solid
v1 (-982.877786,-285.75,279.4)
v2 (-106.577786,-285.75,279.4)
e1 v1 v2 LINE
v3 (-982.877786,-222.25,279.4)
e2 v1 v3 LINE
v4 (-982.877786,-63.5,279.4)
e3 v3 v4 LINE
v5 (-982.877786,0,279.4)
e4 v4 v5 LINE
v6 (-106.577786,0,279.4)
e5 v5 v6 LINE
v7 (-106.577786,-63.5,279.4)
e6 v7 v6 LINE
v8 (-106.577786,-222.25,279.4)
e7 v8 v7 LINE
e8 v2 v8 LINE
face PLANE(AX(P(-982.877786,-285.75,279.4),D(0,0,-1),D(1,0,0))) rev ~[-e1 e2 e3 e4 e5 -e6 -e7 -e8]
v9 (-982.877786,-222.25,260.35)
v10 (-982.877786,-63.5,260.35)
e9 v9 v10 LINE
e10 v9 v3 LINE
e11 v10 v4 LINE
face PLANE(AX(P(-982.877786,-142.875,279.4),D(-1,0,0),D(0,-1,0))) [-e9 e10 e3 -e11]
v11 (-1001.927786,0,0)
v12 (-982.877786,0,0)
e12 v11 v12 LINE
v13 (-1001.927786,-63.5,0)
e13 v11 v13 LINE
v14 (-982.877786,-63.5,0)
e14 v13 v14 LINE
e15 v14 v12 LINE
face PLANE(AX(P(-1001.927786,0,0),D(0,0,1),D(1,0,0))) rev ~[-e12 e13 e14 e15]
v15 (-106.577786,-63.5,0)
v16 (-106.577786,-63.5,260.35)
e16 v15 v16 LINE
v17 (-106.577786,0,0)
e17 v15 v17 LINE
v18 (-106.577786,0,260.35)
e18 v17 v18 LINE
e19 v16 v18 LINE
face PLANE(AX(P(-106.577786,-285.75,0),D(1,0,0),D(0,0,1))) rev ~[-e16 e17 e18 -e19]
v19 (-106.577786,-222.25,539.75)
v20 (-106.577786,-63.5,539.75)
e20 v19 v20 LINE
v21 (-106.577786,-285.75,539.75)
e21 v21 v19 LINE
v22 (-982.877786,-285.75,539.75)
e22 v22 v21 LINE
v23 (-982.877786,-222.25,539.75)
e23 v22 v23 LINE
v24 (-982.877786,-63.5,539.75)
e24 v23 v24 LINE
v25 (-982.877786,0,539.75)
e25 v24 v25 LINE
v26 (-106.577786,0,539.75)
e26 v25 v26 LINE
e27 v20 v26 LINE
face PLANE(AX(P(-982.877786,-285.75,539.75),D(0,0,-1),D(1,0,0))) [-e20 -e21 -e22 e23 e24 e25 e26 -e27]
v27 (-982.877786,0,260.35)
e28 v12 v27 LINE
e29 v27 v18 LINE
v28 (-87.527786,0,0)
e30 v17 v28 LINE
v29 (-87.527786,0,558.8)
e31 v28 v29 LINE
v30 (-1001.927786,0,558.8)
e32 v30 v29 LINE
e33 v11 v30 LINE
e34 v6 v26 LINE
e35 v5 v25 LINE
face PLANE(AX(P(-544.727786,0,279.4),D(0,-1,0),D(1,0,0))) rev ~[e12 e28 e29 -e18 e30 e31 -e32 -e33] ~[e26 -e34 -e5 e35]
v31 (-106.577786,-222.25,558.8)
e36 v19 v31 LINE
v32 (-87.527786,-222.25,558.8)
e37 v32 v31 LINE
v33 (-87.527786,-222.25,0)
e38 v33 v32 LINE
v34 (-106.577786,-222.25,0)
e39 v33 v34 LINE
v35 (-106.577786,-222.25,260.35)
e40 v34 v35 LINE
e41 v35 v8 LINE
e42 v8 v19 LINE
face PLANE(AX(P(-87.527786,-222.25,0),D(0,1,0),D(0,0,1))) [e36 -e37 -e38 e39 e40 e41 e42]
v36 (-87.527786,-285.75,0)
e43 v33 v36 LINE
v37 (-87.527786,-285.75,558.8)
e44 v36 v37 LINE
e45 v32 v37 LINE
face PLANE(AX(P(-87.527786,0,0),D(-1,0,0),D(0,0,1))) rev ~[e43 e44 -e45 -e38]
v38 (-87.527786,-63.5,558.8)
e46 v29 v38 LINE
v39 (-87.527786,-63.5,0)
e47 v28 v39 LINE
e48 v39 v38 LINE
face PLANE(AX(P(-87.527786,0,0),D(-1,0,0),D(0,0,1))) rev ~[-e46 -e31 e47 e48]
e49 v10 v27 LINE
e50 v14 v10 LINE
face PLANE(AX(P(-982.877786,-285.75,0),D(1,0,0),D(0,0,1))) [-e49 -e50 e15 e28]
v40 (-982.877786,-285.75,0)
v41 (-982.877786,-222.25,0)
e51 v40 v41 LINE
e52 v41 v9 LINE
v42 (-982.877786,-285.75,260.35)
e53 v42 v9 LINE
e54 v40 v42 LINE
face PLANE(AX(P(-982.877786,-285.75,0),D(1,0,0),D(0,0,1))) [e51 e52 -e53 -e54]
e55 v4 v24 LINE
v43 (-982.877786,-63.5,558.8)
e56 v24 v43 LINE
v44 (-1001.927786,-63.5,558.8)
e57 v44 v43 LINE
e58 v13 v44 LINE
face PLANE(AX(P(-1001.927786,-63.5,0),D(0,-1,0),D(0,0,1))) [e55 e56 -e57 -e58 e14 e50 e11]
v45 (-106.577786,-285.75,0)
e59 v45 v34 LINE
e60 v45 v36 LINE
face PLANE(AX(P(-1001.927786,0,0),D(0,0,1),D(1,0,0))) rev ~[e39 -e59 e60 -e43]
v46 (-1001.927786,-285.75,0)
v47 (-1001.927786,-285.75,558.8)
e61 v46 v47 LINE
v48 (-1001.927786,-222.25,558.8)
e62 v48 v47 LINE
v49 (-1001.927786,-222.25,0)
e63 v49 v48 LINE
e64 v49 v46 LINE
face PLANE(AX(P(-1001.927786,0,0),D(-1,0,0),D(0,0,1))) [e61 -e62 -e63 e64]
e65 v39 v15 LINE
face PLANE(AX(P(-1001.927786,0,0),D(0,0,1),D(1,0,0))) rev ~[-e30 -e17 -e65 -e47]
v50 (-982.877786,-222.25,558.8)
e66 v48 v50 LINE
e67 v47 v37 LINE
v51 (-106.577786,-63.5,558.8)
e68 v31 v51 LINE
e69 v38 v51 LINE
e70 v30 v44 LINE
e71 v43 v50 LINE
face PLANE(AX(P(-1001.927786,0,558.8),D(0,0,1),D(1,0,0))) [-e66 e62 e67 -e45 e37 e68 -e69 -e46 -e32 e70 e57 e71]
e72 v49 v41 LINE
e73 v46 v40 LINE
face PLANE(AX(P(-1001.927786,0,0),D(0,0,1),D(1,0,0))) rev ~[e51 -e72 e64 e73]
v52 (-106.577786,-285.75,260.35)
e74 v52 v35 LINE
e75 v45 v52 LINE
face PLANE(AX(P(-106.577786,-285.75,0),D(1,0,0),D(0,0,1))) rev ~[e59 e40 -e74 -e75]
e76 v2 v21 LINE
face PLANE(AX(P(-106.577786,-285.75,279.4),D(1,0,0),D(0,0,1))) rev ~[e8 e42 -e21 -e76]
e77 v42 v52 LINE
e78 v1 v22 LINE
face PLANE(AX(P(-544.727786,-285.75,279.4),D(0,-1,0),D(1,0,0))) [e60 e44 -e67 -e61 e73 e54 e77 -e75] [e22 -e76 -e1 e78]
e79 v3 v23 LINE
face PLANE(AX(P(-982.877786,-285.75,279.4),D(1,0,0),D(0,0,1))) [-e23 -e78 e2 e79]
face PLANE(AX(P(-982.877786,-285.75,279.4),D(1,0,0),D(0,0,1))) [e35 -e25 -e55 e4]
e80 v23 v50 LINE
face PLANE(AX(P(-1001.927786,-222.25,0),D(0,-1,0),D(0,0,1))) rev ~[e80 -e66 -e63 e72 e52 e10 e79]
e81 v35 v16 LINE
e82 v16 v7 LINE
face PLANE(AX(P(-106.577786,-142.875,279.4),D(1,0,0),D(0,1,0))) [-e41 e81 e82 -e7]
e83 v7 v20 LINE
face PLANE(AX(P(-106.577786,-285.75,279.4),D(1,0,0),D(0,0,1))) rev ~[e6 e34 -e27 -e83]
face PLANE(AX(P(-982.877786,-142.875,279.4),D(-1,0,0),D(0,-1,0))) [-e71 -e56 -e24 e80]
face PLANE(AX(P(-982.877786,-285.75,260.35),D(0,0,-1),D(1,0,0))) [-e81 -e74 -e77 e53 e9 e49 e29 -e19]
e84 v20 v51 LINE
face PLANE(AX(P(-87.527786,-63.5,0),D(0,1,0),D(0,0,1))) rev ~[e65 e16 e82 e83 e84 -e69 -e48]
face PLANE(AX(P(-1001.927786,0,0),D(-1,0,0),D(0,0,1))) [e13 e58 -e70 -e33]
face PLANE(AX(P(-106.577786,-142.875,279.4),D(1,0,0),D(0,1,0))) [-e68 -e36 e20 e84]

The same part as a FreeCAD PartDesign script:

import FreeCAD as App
import Part
import Sketcher
from FreeCAD import Vector
Q = App.Units.Quantity

doc = App.newDocument("Part")
params = doc.addObject("Spreadsheet::Sheet", "Params")
for row, (alias, value) in enumerate([
    ("sketch1_width", "36 in"),
    ("sketch1_height", "22 in"),
    ("pad1_length", "11.25 in"),
    ("sketch2_width", "34.5 in"),
    ("sketch2_height", "10.25 in"),
    ("sketch3_height", "22 in"),
    ("sketch3_width", "6.25 in"),
    ("pocket2_length", "0.75 in"),
    ("sketch4_height", "22 in"),
    ("sketch4_width", "6.25 in"),
    ("pocket3_length", "0.75 in"),
], start=1):
    params.set(f"A{row}", alias)
    params.set(f"B{row}", "=" + value)
    params.setAlias(f"B{row}", alias)

body = doc.addObject("PartDesign::Body", "Body")

# Sketch on XZ plane
sketch1 = body.newObject("Sketcher::SketchObject", "Sketch")
sketch1.AttachmentSupport = (doc.getObject("XZ_Plane"), [""])
sketch1.MapMode = "FlatFace"
sketch1.addGeometry(Part.LineSegment(Vector(-1002, 559, 0), Vector(-1002, 0, 0)), False)
sketch1.addGeometry(Part.LineSegment(Vector(-1002, 0, 0), Vector(-88, 0, 0)), False)
sketch1.addGeometry(Part.LineSegment(Vector(-88, 0, 0), Vector(-88, 559, 0)), False)
sketch1.addGeometry(Part.LineSegment(Vector(-88, 559, 0), Vector(-1002, 559, 0)), False)
sketch1.addConstraint(Sketcher.Constraint("Coincident", 0, 2, 1, 1))
sketch1.addConstraint(Sketcher.Constraint("Coincident", 1, 2, 2, 1))
sketch1.addConstraint(Sketcher.Constraint("Coincident", 2, 2, 3, 1))
sketch1.addConstraint(Sketcher.Constraint("Coincident", 3, 2, 0, 1))
sketch1.addConstraint(Sketcher.Constraint("Vertical", 0))
sketch1.addConstraint(Sketcher.Constraint("Horizontal", 1))
sketch1.addConstraint(Sketcher.Constraint("Vertical", 2))
sketch1.addConstraint(Sketcher.Constraint("Horizontal", 3))
sketch1.addConstraint(Sketcher.Constraint("PointOnObject", 0, 2, -1))
sketch1.addConstraint(Sketcher.Constraint("DistanceX", 1, 1, 1, 2, Q("36 in")))
sketch1.addConstraint(Sketcher.Constraint("DistanceY", 0, 2, 0, 1, Q("22 in")))
sketch1.addConstraint(Sketcher.Constraint("DistanceX", 0, 2, -1, 1, Q("1001.927786 mm")))
sketch1.setExpression("Constraints[9]", "Params.sketch1_width")
sketch1.setExpression("Constraints[10]", "Params.sketch1_height")
pad1 = body.newObject("PartDesign::Pad", "Pad")
pad1.Profile = sketch1
pad1.setExpression("Length", "Params.pad1_length")

# Sketch on XZ plane
sketch2 = body.newObject("Sketcher::SketchObject", "Sketch001")
sketch2.AttachmentSupport = (doc.getObject("XZ_Plane"), [""])
sketch2.MapMode = "FlatFace"
sketch2.AttachmentOffset = App.Placement(Vector(0, 0, 11.25 * 25.4), App.Rotation())
sketch2.addGeometry(Part.LineSegment(Vector(-983, 260, 0), Vector(-983, 0, 0)), False)
sketch2.addGeometry(Part.LineSegment(Vector(-983, 0, 0), Vector(-107, 0, 0)), False)
sketch2.addGeometry(Part.LineSegment(Vector(-107, 0, 0), Vector(-107, 260, 0)), False)
sketch2.addGeometry(Part.LineSegment(Vector(-107, 260, 0), Vector(-983, 260, 0)), False)
sketch2.addGeometry(Part.LineSegment(Vector(-983, 540, 0), Vector(-983, 279, 0)), False)
sketch2.addGeometry(Part.LineSegment(Vector(-983, 279, 0), Vector(-107, 279, 0)), False)
sketch2.addGeometry(Part.LineSegment(Vector(-107, 279, 0), Vector(-107, 540, 0)), False)
sketch2.addGeometry(Part.LineSegment(Vector(-107, 540, 0), Vector(-983, 540, 0)), False)
sketch2.addConstraint(Sketcher.Constraint("Coincident", 0, 2, 1, 1))
sketch2.addConstraint(Sketcher.Constraint("Coincident", 1, 2, 2, 1))
sketch2.addConstraint(Sketcher.Constraint("Coincident", 2, 2, 3, 1))
sketch2.addConstraint(Sketcher.Constraint("Coincident", 3, 2, 0, 1))
sketch2.addConstraint(Sketcher.Constraint("Coincident", 4, 2, 5, 1))
sketch2.addConstraint(Sketcher.Constraint("Coincident", 5, 2, 6, 1))
sketch2.addConstraint(Sketcher.Constraint("Coincident", 6, 2, 7, 1))
sketch2.addConstraint(Sketcher.Constraint("Coincident", 7, 2, 4, 1))
sketch2.addConstraint(Sketcher.Constraint("Vertical", 0))
sketch2.addConstraint(Sketcher.Constraint("Horizontal", 1))
sketch2.addConstraint(Sketcher.Constraint("Vertical", 2))
sketch2.addConstraint(Sketcher.Constraint("Horizontal", 3))
sketch2.addConstraint(Sketcher.Constraint("Vertical", 4))
sketch2.addConstraint(Sketcher.Constraint("Horizontal", 5))
sketch2.addConstraint(Sketcher.Constraint("Vertical", 6))
sketch2.addConstraint(Sketcher.Constraint("Horizontal", 7))
sketch2.addConstraint(Sketcher.Constraint("PointOnObject", 0, 2, -1))
sketch2.addConstraint(Sketcher.Constraint("Vertical", 3, 2, 4, 2))
sketch2.addConstraint(Sketcher.Constraint("Vertical", 2, 2, 5, 2))
sketch2.addConstraint(Sketcher.Constraint("Equal", 2, 4))
sketch2.addConstraint(Sketcher.Constraint("DistanceX", 1, 1, 1, 2, Q("34.5 in")))
sketch2.addConstraint(Sketcher.Constraint("DistanceY", -1, 1, 4, 2, Q("11 in")))
sketch2.addConstraint(Sketcher.Constraint("DistanceY", 0, 2, 0, 1, Q("10.25 in")))
sketch2.addConstraint(Sketcher.Constraint("DistanceX", 0, 2, -1, 1, Q("982.877786 mm")))
sketch2.setExpression("Constraints[20]", "Params.sketch2_width")
sketch2.setExpression("Constraints[22]", "Params.sketch2_height")
pocket1 = body.newObject("PartDesign::Pocket", "Pocket")
pocket1.Profile = sketch2
pocket1.Type = "ThroughAll"

# Sketch on YZ plane
sketch3 = body.newObject("Sketcher::SketchObject", "Sketch002")
sketch3.AttachmentSupport = (doc.getObject("YZ_Plane"), [""])
sketch3.MapMode = "FlatFace"
sketch3.AttachmentOffset = App.Placement(Vector(0, 0, -87.527786), App.Rotation())
sketch3.addGeometry(Part.LineSegment(Vector(-222, 559, 0), Vector(-222, 0, 0)), False)
sketch3.addGeometry(Part.LineSegment(Vector(-222, 0, 0), Vector(-64, 0, 0)), False)
sketch3.addGeometry(Part.LineSegment(Vector(-64, 0, 0), Vector(-64, 559, 0)), False)
sketch3.addGeometry(Part.LineSegment(Vector(-64, 559, 0), Vector(-222, 559, 0)), False)
sketch3.addConstraint(Sketcher.Constraint("Coincident", 0, 2, 1, 1))
sketch3.addConstraint(Sketcher.Constraint("Coincident", 1, 2, 2, 1))
sketch3.addConstraint(Sketcher.Constraint("Coincident", 2, 2, 3, 1))
sketch3.addConstraint(Sketcher.Constraint("Coincident", 3, 2, 0, 1))
sketch3.addConstraint(Sketcher.Constraint("Vertical", 0))
sketch3.addConstraint(Sketcher.Constraint("Horizontal", 1))
sketch3.addConstraint(Sketcher.Constraint("Vertical", 2))
sketch3.addConstraint(Sketcher.Constraint("Horizontal", 3))
sketch3.addConstraint(Sketcher.Constraint("PointOnObject", 0, 2, -1))
sketch3.addConstraint(Sketcher.Constraint("DistanceY", 0, 2, 0, 1, Q("22 in")))
sketch3.addConstraint(Sketcher.Constraint("DistanceX", 1, 1, 1, 2, Q("6.25 in")))
sketch3.addConstraint(Sketcher.Constraint("DistanceX", 1, 2, -1, 1, Q("2.5 in")))
sketch3.setExpression("Constraints[9]", "Params.sketch3_height")
sketch3.setExpression("Constraints[10]", "Params.sketch3_width")
pocket2 = body.newObject("PartDesign::Pocket", "Pocket001")
pocket2.Profile = sketch3
pocket2.setExpression("Length", "Params.pocket2_length")

# Sketch on YZ plane
sketch4 = body.newObject("Sketcher::SketchObject", "Sketch003")
sketch4.AttachmentSupport = (doc.getObject("YZ_Plane"), [""])
sketch4.MapMode = "FlatFace"
sketch4.AttachmentOffset = App.Placement(Vector(0, 0, -1001.927786), App.Rotation())
sketch4.addGeometry(Part.LineSegment(Vector(-64, 559, 0), Vector(-64, 0, 0)), False)
sketch4.addGeometry(Part.LineSegment(Vector(-64, 0, 0), Vector(-222, 0, 0)), False)
sketch4.addGeometry(Part.LineSegment(Vector(-222, 0, 0), Vector(-222, 559, 0)), False)
sketch4.addGeometry(Part.LineSegment(Vector(-222, 559, 0), Vector(-64, 559, 0)), False)
sketch4.addConstraint(Sketcher.Constraint("Coincident", 0, 2, 1, 1))
sketch4.addConstraint(Sketcher.Constraint("Coincident", 1, 2, 2, 1))
sketch4.addConstraint(Sketcher.Constraint("Coincident", 2, 2, 3, 1))
sketch4.addConstraint(Sketcher.Constraint("Coincident", 3, 2, 0, 1))
sketch4.addConstraint(Sketcher.Constraint("Vertical", 0))
sketch4.addConstraint(Sketcher.Constraint("Horizontal", 1))
sketch4.addConstraint(Sketcher.Constraint("Vertical", 2))
sketch4.addConstraint(Sketcher.Constraint("Horizontal", 3))
sketch4.addConstraint(Sketcher.Constraint("PointOnObject", 0, 2, -1))
sketch4.addConstraint(Sketcher.Constraint("DistanceY", 0, 2, 0, 1, Q("22 in")))
sketch4.addConstraint(Sketcher.Constraint("DistanceX", 1, 2, 1, 1, Q("6.25 in")))
sketch4.addConstraint(Sketcher.Constraint("DistanceX", 0, 2, -1, 1, Q("2.5 in")))
sketch4.setExpression("Constraints[9]", "Params.sketch4_height")
sketch4.setExpression("Constraints[10]", "Params.sketch4_width")
pocket3 = body.newObject("PartDesign::Pocket", "Pocket002")
pocket3.Profile = sketch4
pocket3.setExpression("Length", "Params.pocket3_length")
pocket3.Reversed = True

doc.recompute()
